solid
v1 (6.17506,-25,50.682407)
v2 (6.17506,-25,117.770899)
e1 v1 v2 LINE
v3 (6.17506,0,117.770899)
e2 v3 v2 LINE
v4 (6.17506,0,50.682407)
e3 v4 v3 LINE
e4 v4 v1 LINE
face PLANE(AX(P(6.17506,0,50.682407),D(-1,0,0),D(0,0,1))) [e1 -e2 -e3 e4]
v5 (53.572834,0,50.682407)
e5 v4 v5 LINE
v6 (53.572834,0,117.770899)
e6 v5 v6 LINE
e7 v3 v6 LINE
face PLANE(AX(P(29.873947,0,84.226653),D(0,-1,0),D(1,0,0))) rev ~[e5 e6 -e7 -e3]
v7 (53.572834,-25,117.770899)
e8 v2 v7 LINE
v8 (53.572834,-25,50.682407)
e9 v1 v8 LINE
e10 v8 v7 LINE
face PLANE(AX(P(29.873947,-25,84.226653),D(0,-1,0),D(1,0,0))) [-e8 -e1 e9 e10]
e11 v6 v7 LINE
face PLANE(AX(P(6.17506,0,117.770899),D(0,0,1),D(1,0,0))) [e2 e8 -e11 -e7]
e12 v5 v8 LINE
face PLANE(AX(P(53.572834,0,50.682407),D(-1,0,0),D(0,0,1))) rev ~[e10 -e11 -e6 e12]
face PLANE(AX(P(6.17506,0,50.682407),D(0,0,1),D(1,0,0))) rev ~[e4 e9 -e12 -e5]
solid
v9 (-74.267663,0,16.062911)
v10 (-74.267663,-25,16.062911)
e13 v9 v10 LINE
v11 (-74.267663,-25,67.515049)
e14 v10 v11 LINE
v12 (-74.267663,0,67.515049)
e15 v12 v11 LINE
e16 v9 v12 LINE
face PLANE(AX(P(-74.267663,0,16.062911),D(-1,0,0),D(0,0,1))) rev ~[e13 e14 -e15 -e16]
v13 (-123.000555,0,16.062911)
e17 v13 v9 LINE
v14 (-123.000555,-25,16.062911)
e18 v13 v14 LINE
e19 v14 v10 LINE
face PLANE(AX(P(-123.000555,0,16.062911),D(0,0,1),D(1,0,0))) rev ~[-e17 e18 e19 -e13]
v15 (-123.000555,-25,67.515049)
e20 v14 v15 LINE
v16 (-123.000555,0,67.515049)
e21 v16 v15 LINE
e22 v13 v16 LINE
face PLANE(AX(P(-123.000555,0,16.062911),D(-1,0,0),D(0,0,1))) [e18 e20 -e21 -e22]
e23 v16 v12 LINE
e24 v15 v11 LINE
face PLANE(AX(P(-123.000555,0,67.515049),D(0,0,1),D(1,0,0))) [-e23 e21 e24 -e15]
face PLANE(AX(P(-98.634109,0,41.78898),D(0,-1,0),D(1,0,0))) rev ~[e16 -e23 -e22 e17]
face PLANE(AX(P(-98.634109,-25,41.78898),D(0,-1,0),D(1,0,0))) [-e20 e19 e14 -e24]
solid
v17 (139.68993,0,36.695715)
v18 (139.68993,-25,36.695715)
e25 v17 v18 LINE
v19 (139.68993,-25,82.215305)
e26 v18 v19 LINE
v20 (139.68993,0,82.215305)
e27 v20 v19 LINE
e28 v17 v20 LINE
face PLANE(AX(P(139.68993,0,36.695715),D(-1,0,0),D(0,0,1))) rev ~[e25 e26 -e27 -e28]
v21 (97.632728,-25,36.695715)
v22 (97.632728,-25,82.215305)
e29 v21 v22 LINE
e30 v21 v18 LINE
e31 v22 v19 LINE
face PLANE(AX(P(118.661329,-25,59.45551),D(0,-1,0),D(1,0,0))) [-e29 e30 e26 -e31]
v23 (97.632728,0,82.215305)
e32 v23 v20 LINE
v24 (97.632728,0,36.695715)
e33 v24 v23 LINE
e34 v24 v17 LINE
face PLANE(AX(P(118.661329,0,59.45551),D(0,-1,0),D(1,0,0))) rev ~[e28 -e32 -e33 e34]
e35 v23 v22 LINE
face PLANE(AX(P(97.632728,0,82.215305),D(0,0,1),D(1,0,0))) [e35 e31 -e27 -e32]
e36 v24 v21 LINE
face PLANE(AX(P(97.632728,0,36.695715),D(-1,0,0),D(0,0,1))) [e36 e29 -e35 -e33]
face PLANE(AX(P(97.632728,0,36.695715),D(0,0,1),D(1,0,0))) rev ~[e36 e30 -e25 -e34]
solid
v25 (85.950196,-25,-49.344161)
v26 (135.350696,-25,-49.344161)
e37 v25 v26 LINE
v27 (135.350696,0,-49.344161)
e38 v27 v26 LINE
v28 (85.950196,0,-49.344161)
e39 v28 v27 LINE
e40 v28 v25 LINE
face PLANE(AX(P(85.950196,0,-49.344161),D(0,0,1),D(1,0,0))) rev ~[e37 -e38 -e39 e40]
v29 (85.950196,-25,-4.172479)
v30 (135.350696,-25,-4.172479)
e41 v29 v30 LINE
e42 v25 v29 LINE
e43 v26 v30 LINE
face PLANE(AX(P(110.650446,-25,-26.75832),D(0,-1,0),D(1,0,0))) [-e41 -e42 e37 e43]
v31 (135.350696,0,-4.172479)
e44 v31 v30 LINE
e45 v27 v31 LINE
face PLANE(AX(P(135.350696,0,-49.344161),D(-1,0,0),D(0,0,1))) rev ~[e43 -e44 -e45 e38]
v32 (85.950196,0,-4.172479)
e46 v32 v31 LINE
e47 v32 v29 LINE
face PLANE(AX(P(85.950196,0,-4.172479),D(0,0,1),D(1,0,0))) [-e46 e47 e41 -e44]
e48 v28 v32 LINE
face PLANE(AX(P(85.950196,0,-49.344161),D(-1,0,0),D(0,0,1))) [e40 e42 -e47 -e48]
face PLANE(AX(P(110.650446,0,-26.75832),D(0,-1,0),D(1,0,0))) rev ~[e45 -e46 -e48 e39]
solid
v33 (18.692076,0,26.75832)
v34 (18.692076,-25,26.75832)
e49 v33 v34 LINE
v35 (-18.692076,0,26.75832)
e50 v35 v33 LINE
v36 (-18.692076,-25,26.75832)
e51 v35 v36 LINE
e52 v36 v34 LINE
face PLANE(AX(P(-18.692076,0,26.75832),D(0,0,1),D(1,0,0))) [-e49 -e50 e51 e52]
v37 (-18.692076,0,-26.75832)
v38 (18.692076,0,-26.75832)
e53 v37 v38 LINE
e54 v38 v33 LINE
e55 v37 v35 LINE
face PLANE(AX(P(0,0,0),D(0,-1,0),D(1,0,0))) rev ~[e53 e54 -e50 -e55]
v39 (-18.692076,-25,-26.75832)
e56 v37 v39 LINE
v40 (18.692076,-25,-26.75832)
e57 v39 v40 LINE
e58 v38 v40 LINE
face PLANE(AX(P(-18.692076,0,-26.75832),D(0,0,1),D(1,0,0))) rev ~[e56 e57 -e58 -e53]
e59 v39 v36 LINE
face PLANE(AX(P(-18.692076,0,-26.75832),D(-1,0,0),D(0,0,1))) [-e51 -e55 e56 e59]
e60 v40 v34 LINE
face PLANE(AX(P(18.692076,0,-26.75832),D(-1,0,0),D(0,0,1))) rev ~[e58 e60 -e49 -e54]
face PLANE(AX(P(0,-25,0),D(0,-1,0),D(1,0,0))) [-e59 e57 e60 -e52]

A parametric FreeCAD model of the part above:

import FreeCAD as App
import Part
import Sketcher


def add_polygon(sketch, points):
    """Adds a closed chain of lines whose ends are joined by coincident constraints."""
    first, n = sketch.GeometryCount, len(points)
    for a, b in zip(points, points[1:] + points[:1]):
        sketch.addGeometry(Part.LineSegment(App.Vector(*a, 0), App.Vector(*b, 0)), False)
    for i in range(n):
        sketch.addConstraint(Sketcher.Constraint("Coincident", first + i, 2, first + (i + 1) % n, 1))

doc = App.newDocument("Part")
body = doc.addObject("PartDesign::Body", "Body")
body.AllowCompound = True

# Sketch on XZ plane
sketch1 = body.newObject("Sketcher::SketchObject", "Sketch")
sketch1.AttachmentSupport = (doc.getObject("XZ_Plane"), [""])
sketch1.MapMode = "FlatFace"
add_polygon(sketch1, [(-19, 27), (-19, -27), (19, -27), (19, 27)])  # lines 0-3
add_polygon(sketch1, [(6, 118), (6, 51), (54, 51), (54, 118)])  # lines 4-7
add_polygon(sketch1, [(98, 82), (98, 37), (140, 37), (140, 82)])  # lines 8-11
add_polygon(sketch1, [(86, -4), (86, -49), (135, -49), (135, -4)])  # lines 12-15
add_polygon(sketch1, [(-123, 68), (-123, 16), (-74, 16), (-74, 68)])  # lines 16-19
sketch1.addConstraint([
    Sketcher.Constraint("Vertical", 0),
    Sketcher.Constraint("Horizontal", 1),
    Sketcher.Constraint("Vertical", 2),
    Sketcher.Constraint("Horizontal", 3),
    Sketcher.Constraint("Vertical", 4),
    Sketcher.Constraint("Horizontal", 5),
    Sketcher.Constraint("Vertical", 6),
    Sketcher.Constraint("Horizontal", 7),
    Sketcher.Constraint("Vertical", 8),
    Sketcher.Constraint("Horizontal", 9),
    Sketcher.Constraint("Vertical", 10),
    Sketcher.Constraint("Horizontal", 11),
    Sketcher.Constraint("Vertical", 12),
    Sketcher.Constraint("Horizontal", 13),
    Sketcher.Constraint("Vertical", 14),
    Sketcher.Constraint("Horizontal", 15),
    Sketcher.Constraint("Vertical", 16),
    Sketcher.Constraint("Horizontal", 17),
    Sketcher.Constraint("Vertical", 18),
    Sketcher.Constraint("Horizontal", 19),
    Sketcher.Constraint("Symmetric", 0, 2, 2, 2, -1, 1),
    Sketcher.Constraint("DistanceX", 9, 1, 9, 2, 42.057201),
    Sketcher.Constraint("DistanceX", 13, 1, 13, 2, 49.400501),
    Sketcher.Constraint("DistanceY", 0, 2, 0, 1, 53.51664),
    Sketcher.Constraint("DistanceY", 8, 2, 8, 1, 45.51959),
    Sketcher.Constraint("DistanceY", 12, 2, 12, 1, 45.171682),
    Sketcher.Constraint("DistanceY", -1, 1, 6, 2, 117.770899),
    Sketcher.Constraint("DistanceY", 5, 2, 10, 2, 31.532898),
    Sketcher.Constraint("DistanceX", 1, 1, 1, 2, 37.384152),
    Sketcher.Constraint("DistanceX", 5, 1, 5, 2, 47.397774),
    Sketcher.Constraint("DistanceX", 17, 1, 17, 2, 48.732892),
    Sketcher.Constraint("DistanceY", 4, 2, 4, 1, 67.088492),
    Sketcher.Constraint("DistanceY", 16, 2, 16, 1, 51.452137),
    Sketcher.Constraint("DistanceX", -1, 1, 4, 2, 6.17506),
    Sketcher.Constraint("DistanceX", -1, 1, 8, 2, 97.632728),
    Sketcher.Constraint("DistanceY", 12, 2, -1, 1, 49.344161),
    Sketcher.Constraint("DistanceY", -1, 1, 16, 2, 16.062911),
    Sketcher.Constraint("DistanceX", 1, 2, 12, 2, 67.25812),
    Sketcher.Constraint("DistanceX", 16, 2, 3, 2, 104.308479),
])
pad1 = body.newObject("PartDesign::Pad", "Pad")
pad1.Profile = sketch1
pad1.Length = 25

doc.recompute()
